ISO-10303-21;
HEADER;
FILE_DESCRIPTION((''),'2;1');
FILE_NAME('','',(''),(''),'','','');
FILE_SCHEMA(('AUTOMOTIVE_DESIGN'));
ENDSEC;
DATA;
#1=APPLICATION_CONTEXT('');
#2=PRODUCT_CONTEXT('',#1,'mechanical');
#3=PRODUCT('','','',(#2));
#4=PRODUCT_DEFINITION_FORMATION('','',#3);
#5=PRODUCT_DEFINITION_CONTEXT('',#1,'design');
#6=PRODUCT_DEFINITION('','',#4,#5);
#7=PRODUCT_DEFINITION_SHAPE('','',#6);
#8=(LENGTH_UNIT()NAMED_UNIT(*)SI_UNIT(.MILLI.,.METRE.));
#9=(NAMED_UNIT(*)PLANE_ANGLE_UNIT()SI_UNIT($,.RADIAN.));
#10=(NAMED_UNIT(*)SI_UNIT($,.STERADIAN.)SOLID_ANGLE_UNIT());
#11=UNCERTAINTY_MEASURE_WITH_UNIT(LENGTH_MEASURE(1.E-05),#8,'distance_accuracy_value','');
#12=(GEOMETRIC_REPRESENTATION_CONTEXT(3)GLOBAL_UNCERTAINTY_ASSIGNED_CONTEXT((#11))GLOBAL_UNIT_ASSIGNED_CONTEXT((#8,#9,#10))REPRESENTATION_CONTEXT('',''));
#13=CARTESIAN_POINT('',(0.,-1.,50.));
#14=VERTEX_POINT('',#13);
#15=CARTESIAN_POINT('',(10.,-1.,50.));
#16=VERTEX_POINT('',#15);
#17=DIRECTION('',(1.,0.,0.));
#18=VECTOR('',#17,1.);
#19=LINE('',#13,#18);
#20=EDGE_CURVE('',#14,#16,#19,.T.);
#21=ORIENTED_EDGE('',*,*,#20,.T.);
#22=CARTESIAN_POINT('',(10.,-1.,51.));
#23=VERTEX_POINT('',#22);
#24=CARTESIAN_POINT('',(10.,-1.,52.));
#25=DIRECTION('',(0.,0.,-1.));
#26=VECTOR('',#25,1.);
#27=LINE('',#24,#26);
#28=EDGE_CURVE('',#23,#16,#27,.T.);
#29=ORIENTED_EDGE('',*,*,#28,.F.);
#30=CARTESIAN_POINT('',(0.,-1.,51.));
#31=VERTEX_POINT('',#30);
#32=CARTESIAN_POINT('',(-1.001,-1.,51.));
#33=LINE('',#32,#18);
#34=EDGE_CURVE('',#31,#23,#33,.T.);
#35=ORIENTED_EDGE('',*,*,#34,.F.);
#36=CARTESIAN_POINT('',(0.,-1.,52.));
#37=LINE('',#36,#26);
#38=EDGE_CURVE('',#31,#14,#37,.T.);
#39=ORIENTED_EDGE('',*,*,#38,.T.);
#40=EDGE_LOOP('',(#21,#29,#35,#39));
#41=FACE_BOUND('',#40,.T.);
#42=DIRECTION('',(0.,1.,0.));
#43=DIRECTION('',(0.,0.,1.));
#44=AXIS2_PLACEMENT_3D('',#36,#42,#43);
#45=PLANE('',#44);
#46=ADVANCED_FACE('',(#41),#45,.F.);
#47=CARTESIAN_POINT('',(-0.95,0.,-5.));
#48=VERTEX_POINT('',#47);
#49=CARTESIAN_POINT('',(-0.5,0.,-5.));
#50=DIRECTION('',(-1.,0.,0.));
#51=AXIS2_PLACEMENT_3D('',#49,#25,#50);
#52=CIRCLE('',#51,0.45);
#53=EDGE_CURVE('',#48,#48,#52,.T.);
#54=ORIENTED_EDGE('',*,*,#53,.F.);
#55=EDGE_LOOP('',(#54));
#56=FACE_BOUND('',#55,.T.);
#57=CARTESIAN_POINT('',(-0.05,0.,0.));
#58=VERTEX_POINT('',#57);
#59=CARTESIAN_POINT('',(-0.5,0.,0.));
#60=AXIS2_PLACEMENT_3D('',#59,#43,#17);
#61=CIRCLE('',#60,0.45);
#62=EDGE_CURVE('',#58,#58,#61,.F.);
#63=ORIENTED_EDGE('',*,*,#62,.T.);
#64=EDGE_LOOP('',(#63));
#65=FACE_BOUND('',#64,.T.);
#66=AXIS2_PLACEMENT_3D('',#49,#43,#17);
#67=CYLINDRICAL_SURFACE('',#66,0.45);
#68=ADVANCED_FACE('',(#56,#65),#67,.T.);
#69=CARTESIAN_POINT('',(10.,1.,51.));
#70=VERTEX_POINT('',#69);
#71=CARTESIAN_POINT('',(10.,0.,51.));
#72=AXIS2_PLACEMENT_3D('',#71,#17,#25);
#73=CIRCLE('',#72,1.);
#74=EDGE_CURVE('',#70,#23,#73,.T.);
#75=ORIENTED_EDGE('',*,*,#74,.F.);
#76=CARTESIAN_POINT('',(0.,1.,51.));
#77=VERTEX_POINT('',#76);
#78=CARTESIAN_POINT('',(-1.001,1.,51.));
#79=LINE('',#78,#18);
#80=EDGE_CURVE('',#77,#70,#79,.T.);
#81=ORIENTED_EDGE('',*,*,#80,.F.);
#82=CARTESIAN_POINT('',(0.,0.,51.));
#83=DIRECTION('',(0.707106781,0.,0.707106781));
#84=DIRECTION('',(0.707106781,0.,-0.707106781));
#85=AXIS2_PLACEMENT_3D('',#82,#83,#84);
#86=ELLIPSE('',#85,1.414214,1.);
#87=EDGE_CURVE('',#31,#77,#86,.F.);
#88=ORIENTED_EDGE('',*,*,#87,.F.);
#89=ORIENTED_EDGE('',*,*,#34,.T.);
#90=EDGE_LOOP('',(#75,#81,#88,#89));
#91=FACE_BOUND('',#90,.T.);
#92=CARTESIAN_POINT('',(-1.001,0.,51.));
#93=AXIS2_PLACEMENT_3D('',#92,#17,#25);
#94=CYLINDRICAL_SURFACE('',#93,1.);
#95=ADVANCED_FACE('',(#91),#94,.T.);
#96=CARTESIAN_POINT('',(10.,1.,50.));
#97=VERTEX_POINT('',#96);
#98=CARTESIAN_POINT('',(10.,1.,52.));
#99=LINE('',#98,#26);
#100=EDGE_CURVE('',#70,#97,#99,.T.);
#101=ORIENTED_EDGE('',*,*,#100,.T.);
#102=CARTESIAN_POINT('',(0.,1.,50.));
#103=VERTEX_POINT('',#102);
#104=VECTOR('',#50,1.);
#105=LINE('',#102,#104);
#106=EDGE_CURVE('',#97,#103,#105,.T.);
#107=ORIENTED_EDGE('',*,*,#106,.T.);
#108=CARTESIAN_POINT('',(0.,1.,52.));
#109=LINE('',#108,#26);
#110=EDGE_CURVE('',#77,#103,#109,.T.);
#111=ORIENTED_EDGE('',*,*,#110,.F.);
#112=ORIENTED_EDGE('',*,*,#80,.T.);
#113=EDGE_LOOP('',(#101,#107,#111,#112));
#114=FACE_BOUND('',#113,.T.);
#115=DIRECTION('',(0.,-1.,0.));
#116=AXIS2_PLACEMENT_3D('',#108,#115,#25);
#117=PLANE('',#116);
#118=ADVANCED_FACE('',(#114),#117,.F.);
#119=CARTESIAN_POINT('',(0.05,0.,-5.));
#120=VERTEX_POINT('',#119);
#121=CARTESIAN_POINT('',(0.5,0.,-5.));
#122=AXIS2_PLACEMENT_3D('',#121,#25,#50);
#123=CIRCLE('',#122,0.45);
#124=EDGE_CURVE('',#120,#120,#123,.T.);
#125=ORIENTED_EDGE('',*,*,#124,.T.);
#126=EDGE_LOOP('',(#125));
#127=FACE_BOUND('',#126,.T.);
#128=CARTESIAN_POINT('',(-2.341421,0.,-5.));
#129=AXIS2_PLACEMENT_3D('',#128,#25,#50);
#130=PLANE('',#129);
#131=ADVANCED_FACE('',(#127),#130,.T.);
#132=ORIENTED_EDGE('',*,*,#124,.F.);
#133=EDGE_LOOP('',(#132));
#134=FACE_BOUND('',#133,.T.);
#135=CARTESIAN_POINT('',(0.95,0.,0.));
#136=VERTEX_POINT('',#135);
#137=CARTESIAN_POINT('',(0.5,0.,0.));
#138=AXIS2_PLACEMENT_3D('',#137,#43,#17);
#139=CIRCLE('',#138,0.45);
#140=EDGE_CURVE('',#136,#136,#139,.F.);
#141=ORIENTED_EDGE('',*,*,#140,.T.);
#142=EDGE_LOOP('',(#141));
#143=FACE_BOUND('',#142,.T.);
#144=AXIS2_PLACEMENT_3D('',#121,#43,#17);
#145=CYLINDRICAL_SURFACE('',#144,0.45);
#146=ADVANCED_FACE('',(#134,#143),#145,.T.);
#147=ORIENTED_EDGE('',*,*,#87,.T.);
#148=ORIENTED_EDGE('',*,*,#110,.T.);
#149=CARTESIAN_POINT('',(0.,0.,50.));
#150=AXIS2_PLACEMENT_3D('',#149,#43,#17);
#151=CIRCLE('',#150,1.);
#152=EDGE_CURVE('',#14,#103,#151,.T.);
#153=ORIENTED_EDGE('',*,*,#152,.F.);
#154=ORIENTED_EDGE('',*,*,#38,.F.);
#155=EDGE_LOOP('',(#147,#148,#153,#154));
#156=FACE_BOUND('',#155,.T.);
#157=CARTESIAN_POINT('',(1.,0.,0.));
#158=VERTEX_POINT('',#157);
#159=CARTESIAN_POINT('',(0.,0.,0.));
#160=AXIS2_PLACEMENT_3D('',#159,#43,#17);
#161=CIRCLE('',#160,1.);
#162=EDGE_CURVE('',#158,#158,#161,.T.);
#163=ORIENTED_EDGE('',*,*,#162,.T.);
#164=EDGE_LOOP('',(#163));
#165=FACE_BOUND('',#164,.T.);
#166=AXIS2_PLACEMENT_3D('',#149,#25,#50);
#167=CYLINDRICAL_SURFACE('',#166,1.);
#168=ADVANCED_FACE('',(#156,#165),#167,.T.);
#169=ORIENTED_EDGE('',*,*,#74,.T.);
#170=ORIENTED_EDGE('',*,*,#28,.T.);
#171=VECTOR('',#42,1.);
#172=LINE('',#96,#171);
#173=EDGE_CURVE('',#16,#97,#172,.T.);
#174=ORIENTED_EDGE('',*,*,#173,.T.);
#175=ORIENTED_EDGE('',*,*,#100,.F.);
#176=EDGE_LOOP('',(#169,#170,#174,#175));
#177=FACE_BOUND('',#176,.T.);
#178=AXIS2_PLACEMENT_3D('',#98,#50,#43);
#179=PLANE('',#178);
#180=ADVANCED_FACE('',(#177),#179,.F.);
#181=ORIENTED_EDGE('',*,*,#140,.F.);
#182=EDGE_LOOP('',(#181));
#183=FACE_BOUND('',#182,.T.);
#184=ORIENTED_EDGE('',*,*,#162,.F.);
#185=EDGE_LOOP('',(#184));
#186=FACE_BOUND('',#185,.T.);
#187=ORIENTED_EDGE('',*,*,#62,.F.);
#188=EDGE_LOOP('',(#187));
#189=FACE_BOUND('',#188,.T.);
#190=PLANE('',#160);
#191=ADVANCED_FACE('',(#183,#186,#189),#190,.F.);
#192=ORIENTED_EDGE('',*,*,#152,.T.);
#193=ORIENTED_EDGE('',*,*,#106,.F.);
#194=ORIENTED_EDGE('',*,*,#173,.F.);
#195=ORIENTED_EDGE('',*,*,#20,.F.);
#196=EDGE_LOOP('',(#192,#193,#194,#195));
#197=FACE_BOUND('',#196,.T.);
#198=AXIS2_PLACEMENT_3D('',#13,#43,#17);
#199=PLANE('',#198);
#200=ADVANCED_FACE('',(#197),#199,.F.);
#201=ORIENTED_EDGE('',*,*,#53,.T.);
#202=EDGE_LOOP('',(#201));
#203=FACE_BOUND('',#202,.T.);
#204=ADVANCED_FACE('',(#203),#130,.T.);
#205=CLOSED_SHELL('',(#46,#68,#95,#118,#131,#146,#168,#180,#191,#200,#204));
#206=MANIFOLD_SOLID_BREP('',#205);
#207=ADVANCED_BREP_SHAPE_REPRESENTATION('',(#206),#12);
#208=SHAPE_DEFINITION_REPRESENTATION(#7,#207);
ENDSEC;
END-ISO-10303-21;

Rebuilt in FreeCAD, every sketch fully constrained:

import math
import FreeCAD as App
import Part
import Sketcher
from FreeCAD import Vector
Q = App.Units.Quantity

doc = App.newDocument("Part")
body = doc.addObject("PartDesign::Body", "Body")

# Sketch on XY plane
sketch1 = doc.addObject("Sketcher::SketchObject", "Sketch")
body.addObject(sketch1)
sketch1.AttachmentSupport = (doc.XY_Plane, [""])
sketch1.MapMode = "FlatFace"
sketch1.addGeometry(Part.Circle(Vector(0, 0, 0), Vector(0, 0, 1), 1), False)
sketch1.addConstraint(Sketcher.Constraint("Coincident", 0, 3, -1, 1))
sketch1.addConstraint(Sketcher.Constraint("Diameter", 0, Q("2 mm")))
pad1 = doc.addObject("PartDesign::Pad", "Pad")
body.addObject(pad1)
pad1.Profile = sketch1
pad1.Length = 50

# Sketch on XY plane
sketch2 = doc.addObject("Sketcher::SketchObject", "Sketch001")
body.addObject(sketch2)
sketch2.AttachmentSupport = (doc.XY_Plane, [""])
sketch2.MapMode = "FlatFace"
sketch2.AttachmentOffset = App.Placement(Vector(0, 0, 50), App.Rotation())
sketch2.addGeometry(Part.LineSegment(Vector(0, 1, 0), Vector(0, -1, 0)), False)
sketch2.addGeometry(Part.LineSegment(Vector(0, -1, 0), Vector(10, -1, 0)), False)
sketch2.addGeometry(Part.LineSegment(Vector(10, -1, 0), Vector(10, 1, 0)), False)
sketch2.addGeometry(Part.LineSegment(Vector(10, 1, 0), Vector(0, 1, 0)), False)
sketch2.addConstraint(Sketcher.Constraint("Coincident", 0, 2, 1, 1))
sketch2.addConstraint(Sketcher.Constraint("Coincident", 1, 2, 2, 1))
sketch2.addConstraint(Sketcher.Constraint("Coincident", 2, 2, 3, 1))
sketch2.addConstraint(Sketcher.Constraint("Coincident", 3, 2, 0, 1))
sketch2.addConstraint(Sketcher.Constraint("Vertical", 0))
sketch2.addConstraint(Sketcher.Constraint("Horizontal", 1))
sketch2.addConstraint(Sketcher.Constraint("Vertical", 2))
sketch2.addConstraint(Sketcher.Constraint("Horizontal", 3))
sketch2.addConstraint(Sketcher.Constraint("Symmetric", 0, 2, 3, 2, -1, 1))
sketch2.addConstraint(Sketcher.Constraint("DistanceX", 1, 1, 1, 2, Q("10 mm")))
sketch2.addConstraint(Sketcher.Constraint("DistanceY", 0, 2, 0, 1, Q("2 mm")))
pad2 = doc.addObject("PartDesign::Pad", "Pad001")
body.addObject(pad2)
pad2.Profile = sketch2
pad2.Length = 2

# Sketch on XY plane
sketch3 = doc.addObject("Sketcher::SketchObject", "Sketch002")
body.addObject(sketch3)
sketch3.AttachmentSupport = (doc.XY_Plane, [""])
sketch3.MapMode = "FlatFace"
sketch3.AttachmentOffset = App.Placement(Vector(0, 0, 50), App.Rotation())
sketch3.addGeometry(Part.LineSegment(Vector(0, -1, 0), Vector(0, 1, 0)), False)
sketch3.addGeometry(Part.ArcOfCircle(Part.Circle(Vector(0, 0, 0), Vector(0, 0, 1), 1), math.radians(90), math.radians(270)), False)
sketch3.addConstraint(Sketcher.Constraint("Coincident", 0, 1, 1, 2))
sketch3.addConstraint(Sketcher.Constraint("Coincident", 1, 1, 0, 2))
sketch3.addConstraint(Sketcher.Constraint("Vertical", 0))
sketch3.addConstraint(Sketcher.Constraint("Coincident", 1, 3, -1, 1))
sketch3.addConstraint(Sketcher.Constraint("PointOnObject", 0, 1, -2))
sketch3.addConstraint(Sketcher.Constraint("Radius", 1, Q("1 mm")))
pad3 = doc.addObject("PartDesign::Pad", "Pad002")
body.addObject(pad3)
pad3.Profile = sketch3
pad3.Length = 2

# Sketch on YZ plane
sketch4 = doc.addObject("Sketcher::SketchObject", "Sketch003")
body.addObject(sketch4)
sketch4.AttachmentSupport = (doc.YZ_Plane, [""])
sketch4.MapMode = "FlatFace"
sketch4.AttachmentOffset = App.Placement(Vector(0, 0, 10), App.Rotation())
sketch4.addGeometry(Part.ArcOfCircle(Part.Circle(Vector(0, 51, 0), Vector(0, 0, 1), 1), math.radians(0), math.radians(90)), False)
sketch4.addGeometry(Part.LineSegment(Vector(1, 51, 0), Vector(1, 52, 0)), False)
sketch4.addGeometry(Part.LineSegment(Vector(1, 52, 0), Vector(0, 52, 0)), False)
sketch4.addConstraint(Sketcher.Constraint("Tangent", 0, 1, 1, 1))
sketch4.addConstraint(Sketcher.Constraint("Coincident", 1, 2, 2, 1))
sketch4.addConstraint(Sketcher.Constraint("Tangent", 2, 2, 0, 2))
sketch4.addConstraint(Sketcher.Constraint("Vertical", 1))
sketch4.addConstraint(Sketcher.Constraint("Horizontal", 2))
sketch4.addConstraint(Sketcher.Constraint("PointOnObject", 0, 3, -2))
sketch4.addConstraint(Sketcher.Constraint("Radius", 0, Q("1 mm")))
sketch4.addConstraint(Sketcher.Constraint("DistanceY", -1, 1, 0, 3, Q("51 mm")))
pocket1 = doc.addObject("PartDesign::Pocket", "Pocket")
body.addObject(pocket1)
pocket1.Profile = sketch4
pocket1.Type = "UpToFirst"

# Sketch on YZ plane
sketch5 = doc.addObject("Sketcher::SketchObject", "Sketch004")
body.addObject(sketch5)
sketch5.AttachmentSupport = (doc.YZ_Plane, [""])
sketch5.MapMode = "FlatFace"
sketch5.AttachmentOffset = App.Placement(Vector(0, 0, 10), App.Rotation())
sketch5.addGeometry(Part.LineSegment(Vector(-1, 52, 0), Vector(-1, 51, 0)), False)
sketch5.addGeometry(Part.ArcOfCircle(Part.Circle(Vector(0, 51, 0), Vector(0, 0, 1), 1), math.radians(90), math.radians(180)), False)
sketch5.addGeometry(Part.LineSegment(Vector(0, 52, 0), Vector(-1, 52, 0)), False)
sketch5.addConstraint(Sketcher.Constraint("Tangent", 0, 2, 1, 2))
sketch5.addConstraint(Sketcher.Constraint("Tangent", 1, 1, 2, 1))
sketch5.addConstraint(Sketcher.Constraint("Coincident", 2, 2, 0, 1))
sketch5.addConstraint(Sketcher.Constraint("Vertical", 0))
sketch5.addConstraint(Sketcher.Constraint("Horizontal", 2))
sketch5.addConstraint(Sketcher.Constraint("PointOnObject", 1, 3, -2))
sketch5.addConstraint(Sketcher.Constraint("Radius", 1, Q("1 mm")))
sketch5.addConstraint(Sketcher.Constraint("DistanceY", -1, 1, 1, 3, Q("51 mm")))
pocket2 = doc.addObject("PartDesign::Pocket", "Pocket001")
body.addObject(pocket2)
pocket2.Profile = sketch5
pocket2.Type = "UpToFirst"

# Sketch on XY plane
sketch6 = doc.addObject("Sketcher::SketchObject", "Sketch005")
body.addObject(sketch6)
sketch6.AttachmentSupport = (doc.XY_Plane, [""])
sketch6.MapMode = "FlatFace"
sketch6.addGeometry(Part.Circle(Vector(-0.5, 0, 0), Vector(0, 0, 1), 0.45), False)
sketch6.addGeometry(Part.Circle(Vector(0.5, 0, 0), Vector(0, 0, 1), 0.45), False)
sketch6.addConstraint(Sketcher.Constraint("Equal", 0, 1))
sketch6.addConstraint(Sketcher.Constraint("Symmetric", 0, 3, 1, 3, -1, 1))
sketch6.addConstraint(Sketcher.Constraint("PointOnObject", 0, 3, -1))
sketch6.addConstraint(Sketcher.Constraint("Diameter", 0, Q("0.9 mm")))
sketch6.addConstraint(Sketcher.Constraint("DistanceX", 0, 3, 1, 3, Q("1 mm")))
pad4 = doc.addObject("PartDesign::Pad", "Pad003")
body.addObject(pad4)
pad4.Profile = sketch6
pad4.Length = 5
pad4.Reversed = True

doc.recompute()
